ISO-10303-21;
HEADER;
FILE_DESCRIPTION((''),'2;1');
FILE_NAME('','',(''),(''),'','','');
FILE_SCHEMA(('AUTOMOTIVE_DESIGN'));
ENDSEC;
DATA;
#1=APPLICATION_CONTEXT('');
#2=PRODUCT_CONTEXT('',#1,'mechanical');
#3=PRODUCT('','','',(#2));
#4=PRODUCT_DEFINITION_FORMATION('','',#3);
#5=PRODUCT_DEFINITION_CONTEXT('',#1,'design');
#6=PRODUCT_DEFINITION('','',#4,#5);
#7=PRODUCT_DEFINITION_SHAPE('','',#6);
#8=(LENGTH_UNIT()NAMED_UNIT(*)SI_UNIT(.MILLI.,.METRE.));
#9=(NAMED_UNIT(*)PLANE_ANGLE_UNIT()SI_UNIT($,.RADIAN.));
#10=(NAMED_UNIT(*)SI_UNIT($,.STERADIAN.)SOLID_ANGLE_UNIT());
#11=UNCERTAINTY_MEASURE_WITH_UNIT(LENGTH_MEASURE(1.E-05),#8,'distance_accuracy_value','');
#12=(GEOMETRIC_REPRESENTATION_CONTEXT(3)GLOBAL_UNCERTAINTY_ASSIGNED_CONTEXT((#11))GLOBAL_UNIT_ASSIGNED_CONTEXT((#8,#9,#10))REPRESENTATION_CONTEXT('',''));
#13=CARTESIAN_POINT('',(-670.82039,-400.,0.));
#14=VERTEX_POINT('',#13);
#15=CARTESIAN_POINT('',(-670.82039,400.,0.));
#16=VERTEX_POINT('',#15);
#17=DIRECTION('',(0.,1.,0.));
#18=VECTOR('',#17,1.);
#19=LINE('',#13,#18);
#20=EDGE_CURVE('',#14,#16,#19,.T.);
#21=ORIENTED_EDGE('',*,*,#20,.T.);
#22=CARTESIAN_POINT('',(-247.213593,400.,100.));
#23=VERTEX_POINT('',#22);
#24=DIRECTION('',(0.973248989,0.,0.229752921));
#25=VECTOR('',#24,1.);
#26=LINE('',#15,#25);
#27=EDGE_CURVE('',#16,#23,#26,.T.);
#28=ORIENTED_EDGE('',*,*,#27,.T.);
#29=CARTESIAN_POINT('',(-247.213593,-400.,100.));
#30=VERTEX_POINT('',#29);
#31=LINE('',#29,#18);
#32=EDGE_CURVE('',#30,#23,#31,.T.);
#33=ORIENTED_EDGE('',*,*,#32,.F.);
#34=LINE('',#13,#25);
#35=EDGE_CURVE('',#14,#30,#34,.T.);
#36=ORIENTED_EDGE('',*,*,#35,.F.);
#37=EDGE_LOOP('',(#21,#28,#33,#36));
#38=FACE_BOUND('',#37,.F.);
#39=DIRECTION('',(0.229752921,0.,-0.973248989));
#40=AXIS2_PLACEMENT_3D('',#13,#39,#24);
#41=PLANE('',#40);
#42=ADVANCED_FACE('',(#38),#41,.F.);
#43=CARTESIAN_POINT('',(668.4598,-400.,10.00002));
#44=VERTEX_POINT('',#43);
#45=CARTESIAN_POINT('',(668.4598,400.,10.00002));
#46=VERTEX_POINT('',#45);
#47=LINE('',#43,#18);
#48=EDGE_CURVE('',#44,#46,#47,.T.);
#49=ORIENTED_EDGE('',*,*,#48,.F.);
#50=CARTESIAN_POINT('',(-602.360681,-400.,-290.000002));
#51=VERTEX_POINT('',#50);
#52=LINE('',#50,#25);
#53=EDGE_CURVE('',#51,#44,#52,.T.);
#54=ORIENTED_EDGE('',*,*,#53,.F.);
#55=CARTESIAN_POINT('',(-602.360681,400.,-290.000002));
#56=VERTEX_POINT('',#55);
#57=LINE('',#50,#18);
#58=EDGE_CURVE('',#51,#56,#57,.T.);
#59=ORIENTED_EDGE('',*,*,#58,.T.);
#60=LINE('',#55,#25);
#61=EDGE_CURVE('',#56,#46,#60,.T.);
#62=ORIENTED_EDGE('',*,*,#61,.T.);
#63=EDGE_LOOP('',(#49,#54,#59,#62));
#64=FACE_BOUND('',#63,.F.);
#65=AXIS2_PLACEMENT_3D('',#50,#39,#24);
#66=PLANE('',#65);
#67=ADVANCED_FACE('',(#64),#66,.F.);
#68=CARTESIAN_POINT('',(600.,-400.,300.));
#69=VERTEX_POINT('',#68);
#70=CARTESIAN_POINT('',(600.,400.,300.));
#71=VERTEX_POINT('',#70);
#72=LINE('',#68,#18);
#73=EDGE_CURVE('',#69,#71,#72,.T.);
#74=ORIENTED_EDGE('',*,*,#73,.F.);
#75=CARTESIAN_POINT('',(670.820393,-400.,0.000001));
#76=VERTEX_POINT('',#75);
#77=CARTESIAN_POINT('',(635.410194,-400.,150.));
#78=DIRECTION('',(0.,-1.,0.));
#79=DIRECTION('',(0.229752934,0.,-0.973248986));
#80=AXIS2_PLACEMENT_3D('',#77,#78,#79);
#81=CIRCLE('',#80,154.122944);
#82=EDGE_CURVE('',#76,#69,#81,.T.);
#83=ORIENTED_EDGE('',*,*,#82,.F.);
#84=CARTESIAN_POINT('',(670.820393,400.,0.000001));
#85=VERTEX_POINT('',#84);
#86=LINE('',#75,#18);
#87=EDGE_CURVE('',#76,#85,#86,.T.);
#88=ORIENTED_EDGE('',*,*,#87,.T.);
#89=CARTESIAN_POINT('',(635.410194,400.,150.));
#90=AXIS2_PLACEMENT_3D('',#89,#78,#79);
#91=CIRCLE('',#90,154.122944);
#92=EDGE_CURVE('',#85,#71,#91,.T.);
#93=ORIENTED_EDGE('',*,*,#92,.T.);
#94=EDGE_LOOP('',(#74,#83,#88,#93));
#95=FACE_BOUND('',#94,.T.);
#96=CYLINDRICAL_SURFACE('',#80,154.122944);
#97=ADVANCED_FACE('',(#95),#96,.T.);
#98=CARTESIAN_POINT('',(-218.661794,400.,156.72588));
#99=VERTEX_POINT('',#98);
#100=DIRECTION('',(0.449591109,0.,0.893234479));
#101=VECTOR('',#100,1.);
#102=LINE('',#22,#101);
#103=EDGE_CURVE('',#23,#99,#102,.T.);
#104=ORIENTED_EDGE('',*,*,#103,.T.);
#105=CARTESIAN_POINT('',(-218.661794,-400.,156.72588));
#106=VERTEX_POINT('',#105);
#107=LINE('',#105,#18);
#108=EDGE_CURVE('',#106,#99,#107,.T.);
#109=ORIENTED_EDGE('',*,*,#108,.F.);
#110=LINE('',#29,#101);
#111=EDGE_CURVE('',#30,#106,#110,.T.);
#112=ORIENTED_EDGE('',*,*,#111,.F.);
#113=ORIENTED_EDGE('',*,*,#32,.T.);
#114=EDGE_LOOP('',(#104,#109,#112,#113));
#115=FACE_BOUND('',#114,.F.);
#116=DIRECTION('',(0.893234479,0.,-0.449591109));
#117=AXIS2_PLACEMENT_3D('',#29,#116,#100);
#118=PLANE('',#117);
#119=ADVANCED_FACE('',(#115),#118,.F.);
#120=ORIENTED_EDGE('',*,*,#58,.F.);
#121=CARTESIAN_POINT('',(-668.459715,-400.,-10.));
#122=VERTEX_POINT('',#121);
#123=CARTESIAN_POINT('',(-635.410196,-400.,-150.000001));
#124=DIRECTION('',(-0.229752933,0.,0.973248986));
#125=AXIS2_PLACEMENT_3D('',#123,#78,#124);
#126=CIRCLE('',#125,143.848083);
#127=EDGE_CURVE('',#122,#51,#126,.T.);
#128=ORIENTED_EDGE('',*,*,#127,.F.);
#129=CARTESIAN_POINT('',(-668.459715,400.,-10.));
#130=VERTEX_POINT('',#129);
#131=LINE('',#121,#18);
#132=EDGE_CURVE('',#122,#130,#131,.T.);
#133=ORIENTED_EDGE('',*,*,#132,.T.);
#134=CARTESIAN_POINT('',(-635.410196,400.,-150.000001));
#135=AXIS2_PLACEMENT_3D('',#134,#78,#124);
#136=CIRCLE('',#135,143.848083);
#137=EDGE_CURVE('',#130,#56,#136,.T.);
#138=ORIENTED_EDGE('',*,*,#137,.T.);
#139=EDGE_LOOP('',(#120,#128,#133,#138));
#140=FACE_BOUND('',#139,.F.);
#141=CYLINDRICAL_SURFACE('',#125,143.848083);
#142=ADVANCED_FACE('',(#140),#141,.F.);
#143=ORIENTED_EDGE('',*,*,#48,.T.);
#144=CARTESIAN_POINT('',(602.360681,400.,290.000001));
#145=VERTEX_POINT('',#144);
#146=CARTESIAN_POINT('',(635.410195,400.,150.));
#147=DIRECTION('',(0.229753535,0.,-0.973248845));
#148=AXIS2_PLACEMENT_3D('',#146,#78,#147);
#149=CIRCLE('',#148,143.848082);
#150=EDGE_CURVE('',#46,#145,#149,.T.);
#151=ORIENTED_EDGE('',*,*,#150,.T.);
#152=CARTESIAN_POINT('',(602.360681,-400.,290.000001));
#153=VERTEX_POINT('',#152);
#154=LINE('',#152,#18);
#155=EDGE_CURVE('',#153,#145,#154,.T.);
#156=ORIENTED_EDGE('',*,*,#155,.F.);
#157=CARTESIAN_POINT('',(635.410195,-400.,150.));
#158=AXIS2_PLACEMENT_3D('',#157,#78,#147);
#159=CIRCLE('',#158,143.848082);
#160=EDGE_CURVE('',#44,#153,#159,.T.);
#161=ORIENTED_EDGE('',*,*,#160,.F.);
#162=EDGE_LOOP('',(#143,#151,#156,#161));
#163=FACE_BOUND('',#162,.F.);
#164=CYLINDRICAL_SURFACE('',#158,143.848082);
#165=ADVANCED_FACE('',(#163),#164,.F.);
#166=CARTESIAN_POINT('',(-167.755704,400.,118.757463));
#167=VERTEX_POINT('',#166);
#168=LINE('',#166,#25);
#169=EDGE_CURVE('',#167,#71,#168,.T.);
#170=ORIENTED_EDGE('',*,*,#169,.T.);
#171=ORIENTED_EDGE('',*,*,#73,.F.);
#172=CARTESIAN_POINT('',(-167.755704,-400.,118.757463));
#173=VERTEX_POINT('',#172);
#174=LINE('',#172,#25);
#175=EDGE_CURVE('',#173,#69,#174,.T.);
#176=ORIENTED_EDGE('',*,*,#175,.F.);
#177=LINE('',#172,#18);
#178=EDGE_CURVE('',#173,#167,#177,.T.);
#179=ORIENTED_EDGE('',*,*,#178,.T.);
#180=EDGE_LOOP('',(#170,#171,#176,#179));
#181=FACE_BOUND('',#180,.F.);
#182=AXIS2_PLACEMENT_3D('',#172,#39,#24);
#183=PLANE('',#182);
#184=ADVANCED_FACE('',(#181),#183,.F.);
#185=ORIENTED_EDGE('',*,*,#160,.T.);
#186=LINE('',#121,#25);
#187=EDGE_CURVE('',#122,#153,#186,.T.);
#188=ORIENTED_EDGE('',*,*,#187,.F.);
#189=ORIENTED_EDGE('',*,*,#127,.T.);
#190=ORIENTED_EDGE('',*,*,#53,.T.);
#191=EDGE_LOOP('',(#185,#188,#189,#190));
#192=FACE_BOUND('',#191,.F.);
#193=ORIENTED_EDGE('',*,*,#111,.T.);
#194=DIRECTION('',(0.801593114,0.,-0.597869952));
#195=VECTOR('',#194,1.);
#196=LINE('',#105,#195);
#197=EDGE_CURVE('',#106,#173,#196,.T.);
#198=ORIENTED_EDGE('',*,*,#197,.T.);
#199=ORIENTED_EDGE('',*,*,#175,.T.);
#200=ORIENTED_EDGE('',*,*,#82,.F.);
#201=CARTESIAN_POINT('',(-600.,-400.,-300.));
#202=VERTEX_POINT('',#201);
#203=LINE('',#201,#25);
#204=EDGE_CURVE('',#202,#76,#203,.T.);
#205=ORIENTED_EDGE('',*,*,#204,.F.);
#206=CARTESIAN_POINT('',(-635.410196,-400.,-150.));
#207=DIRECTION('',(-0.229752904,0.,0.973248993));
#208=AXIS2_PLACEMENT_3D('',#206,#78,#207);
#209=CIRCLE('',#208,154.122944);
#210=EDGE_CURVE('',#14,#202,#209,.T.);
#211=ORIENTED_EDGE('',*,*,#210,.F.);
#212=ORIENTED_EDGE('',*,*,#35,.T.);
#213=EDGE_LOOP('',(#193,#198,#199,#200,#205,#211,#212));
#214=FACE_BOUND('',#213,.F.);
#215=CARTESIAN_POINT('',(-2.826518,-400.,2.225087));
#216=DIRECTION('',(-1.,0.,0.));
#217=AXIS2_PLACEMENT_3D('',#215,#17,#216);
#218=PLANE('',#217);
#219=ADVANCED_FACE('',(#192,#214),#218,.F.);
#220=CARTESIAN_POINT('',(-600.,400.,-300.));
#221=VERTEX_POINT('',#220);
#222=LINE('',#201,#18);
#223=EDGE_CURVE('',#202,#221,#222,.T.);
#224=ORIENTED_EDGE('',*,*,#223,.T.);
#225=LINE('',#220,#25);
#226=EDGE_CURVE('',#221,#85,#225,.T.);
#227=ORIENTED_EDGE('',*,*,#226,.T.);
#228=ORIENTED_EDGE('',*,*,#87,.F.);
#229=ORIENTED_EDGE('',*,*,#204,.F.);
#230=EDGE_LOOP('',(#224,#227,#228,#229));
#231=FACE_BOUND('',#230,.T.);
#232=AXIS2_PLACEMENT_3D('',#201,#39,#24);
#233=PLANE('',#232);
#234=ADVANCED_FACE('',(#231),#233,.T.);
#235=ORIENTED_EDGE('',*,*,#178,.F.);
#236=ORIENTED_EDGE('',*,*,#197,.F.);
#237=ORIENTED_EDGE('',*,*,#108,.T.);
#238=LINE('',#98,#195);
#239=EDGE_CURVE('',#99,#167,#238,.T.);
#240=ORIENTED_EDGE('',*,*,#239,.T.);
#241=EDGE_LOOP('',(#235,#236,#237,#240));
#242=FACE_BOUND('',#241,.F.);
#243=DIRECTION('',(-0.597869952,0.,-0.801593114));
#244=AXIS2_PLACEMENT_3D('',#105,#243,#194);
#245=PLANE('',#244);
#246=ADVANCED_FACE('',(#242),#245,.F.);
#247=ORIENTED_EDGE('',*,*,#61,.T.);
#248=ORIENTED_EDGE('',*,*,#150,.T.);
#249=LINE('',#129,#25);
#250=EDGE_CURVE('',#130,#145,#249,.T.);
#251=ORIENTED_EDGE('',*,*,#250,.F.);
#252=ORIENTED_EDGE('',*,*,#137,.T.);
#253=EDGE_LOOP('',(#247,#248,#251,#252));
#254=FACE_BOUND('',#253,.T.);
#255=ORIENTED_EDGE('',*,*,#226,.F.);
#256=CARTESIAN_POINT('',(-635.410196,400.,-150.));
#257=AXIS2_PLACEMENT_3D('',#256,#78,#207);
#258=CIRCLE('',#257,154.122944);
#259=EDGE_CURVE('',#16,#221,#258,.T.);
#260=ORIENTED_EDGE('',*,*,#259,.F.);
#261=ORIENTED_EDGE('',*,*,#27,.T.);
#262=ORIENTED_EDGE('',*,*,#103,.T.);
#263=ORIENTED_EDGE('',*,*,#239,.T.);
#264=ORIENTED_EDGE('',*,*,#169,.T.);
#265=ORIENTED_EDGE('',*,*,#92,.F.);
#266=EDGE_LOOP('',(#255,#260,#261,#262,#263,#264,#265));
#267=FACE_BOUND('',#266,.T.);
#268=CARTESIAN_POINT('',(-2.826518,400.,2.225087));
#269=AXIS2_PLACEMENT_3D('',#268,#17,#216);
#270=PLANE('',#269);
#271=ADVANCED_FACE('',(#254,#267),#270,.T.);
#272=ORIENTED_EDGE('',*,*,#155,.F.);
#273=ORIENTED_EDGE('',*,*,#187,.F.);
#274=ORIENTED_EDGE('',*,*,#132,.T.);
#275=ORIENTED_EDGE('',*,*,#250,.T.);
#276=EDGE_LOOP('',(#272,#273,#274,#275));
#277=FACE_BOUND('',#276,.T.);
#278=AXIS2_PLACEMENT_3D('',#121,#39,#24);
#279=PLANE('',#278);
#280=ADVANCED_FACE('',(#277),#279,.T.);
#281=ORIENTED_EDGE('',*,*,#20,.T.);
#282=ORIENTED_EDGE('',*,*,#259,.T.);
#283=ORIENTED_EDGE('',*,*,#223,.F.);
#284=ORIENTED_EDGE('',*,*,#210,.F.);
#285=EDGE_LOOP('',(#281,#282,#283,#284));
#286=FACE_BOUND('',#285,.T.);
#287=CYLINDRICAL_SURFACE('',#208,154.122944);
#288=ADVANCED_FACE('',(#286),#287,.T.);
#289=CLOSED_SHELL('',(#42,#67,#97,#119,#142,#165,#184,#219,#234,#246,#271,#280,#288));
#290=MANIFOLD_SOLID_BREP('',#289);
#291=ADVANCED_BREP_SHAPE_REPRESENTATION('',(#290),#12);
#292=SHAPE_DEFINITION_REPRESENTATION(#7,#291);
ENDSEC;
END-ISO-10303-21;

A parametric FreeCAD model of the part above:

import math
import FreeCAD as App
import Part
import Sketcher
Q = App.Units.Quantity

doc = App.newDocument("Part")
body = doc.addObject("PartDesign::Body", "Body")

sketch1 = body.newObject("Sketcher::SketchObject", "Sketch")
sketch1.AttachmentSupport = (doc.getObject("XZ_Plane"), [""])
sketch1.MapMode = "FlatFace"
sketch1.AttachmentOffset = App.Placement(App.Vector(0, 0, 400), App.Rotation())
sketch1.addGeometry([
    Part.LineSegment(App.Vector(-247.213593, 100, 0), App.Vector(-670.82039, 0, 0)),
    Part.ArcOfCircle(Part.Circle(App.Vector(-635.410196, -150, 0), App.Vector(0, 0, 1), 154.122944), math.radians(103.282525), math.radians(283.282525)),
    Part.LineSegment(App.Vector(-600, -300, 0), App.Vector(670.820393, 0.000001, 0)),
    Part.ArcOfCircle(Part.Circle(App.Vector(635.410194, 150, 0), App.Vector(0, 0, 1), 154.122944), math.radians(-76.717474), math.radians(103.282525)),
    Part.LineSegment(App.Vector(600, 300, 0), App.Vector(-167.755704, 118.757463, 0)),
    Part.LineSegment(App.Vector(-167.755704, 118.757463, 0), App.Vector(-218.661794, 156.72588, 0)),
    Part.LineSegment(App.Vector(-218.661794, 156.72588, 0), App.Vector(-247.213593, 100, 0)),
    Part.LineSegment(App.Vector(-668.459715, -10, 0), App.Vector(602.360681, 290.000001, 0)),
    Part.ArcOfCircle(Part.Circle(App.Vector(635.410195, 150, 0), App.Vector(0, 0, 1), 143.848082), math.radians(-76.717438), math.radians(103.282524)),
    Part.LineSegment(App.Vector(668.4598, 10.00002, 0), App.Vector(-602.360681, -290.000002, 0)),
    Part.ArcOfCircle(Part.Circle(App.Vector(-635.410196, -150.000001, 0), App.Vector(0, 0, 1), 143.848083), math.radians(103.282526), math.radians(283.282525)),
], False)
sketch1.addConstraint([
    Sketcher.Constraint("Coincident", 0, 2, 1, 1),
    Sketcher.Constraint("Coincident", 1, 2, 2, 1),
    Sketcher.Constraint("Coincident", 2, 2, 3, 1),
    Sketcher.Constraint("Coincident", 3, 2, 4, 1),
    Sketcher.Constraint("Coincident", 4, 2, 5, 1),
    Sketcher.Constraint("Coincident", 5, 2, 6, 1),
    Sketcher.Constraint("Coincident", 6, 2, 0, 1),
    Sketcher.Constraint("Coincident", 7, 2, 8, 2),
    Sketcher.Constraint("Coincident", 8, 1, 9, 1),
    Sketcher.Constraint("Coincident", 9, 2, 10, 2),
    Sketcher.Constraint("Coincident", 10, 1, 7, 1),
    Sketcher.Constraint("Coincident", 8, 3, 3, 3),
    Sketcher.Constraint("Coincident", 10, 3, 1, 3),
    Sketcher.Constraint("PointOnObject", 0, 2, -1),
    Sketcher.Constraint("PointOnObject", 2, 2, -1),
    Sketcher.Constraint("DistanceY", 1, 3, -1, 1, Q("150 mm")),
    Sketcher.Constraint("DistanceY", -1, 1, 3, 3, Q("150 mm")),
    Sketcher.Constraint("DistanceX", 1, 2, -1, 1, Q("600 mm")),
    Sketcher.Constraint("DistanceY", 1, 2, -1, 1, Q("300 mm")),
    Sketcher.Constraint("DistanceX", -1, 1, 3, 2, Q("600 mm")),
    Sketcher.Constraint("DistanceY", -1, 1, 3, 2, Q("300 mm")),
    Sketcher.Constraint("DistanceY", -1, 1, 6, 2, Q("100 mm")),
    Sketcher.Constraint("DistanceY", -1, 1, 7, 2, Q("290.000001 mm")),
    Sketcher.Constraint("DistanceY", 9, 2, -1, 1, Q("290.000002 mm")),
    Sketcher.Constraint("DistanceY", 10, 1, -1, 1, Q("10 mm")),
    Sketcher.Constraint("Radius", 1, Q("154.122944 mm")),
    Sketcher.Constraint("Radius", 3, Q("154.122944 mm")),
    Sketcher.Constraint("Radius", 8, Q("143.848082 mm")),
    Sketcher.Constraint("Radius", 10, Q("143.848083 mm")),
    Sketcher.Constraint("DistanceX", -1, 1, 8, 1, Q("668.4598 mm")),
    Sketcher.Constraint("DistanceX", 1, 3, 5, 2, Q("416.748402 mm")),
    Sketcher.Constraint("DistanceX", 6, 2, 5, 2, Q("28.551799 mm")),
    Sketcher.Constraint("DistanceY", -1, 1, 5, 2, Q("156.72588 mm")),
    Sketcher.Constraint("DistanceX", 1, 3, 4, 2, Q("467.654492 mm")),
    Sketcher.Constraint("DistanceY", 4, 2, 7, 2, Q("171.242538 mm")),
])
pad1 = body.newObject("PartDesign::Pad", "Pad")
pad1.Profile = sketch1
pad1.Length = 800
pad1.Reversed = True

doc.recompute()
